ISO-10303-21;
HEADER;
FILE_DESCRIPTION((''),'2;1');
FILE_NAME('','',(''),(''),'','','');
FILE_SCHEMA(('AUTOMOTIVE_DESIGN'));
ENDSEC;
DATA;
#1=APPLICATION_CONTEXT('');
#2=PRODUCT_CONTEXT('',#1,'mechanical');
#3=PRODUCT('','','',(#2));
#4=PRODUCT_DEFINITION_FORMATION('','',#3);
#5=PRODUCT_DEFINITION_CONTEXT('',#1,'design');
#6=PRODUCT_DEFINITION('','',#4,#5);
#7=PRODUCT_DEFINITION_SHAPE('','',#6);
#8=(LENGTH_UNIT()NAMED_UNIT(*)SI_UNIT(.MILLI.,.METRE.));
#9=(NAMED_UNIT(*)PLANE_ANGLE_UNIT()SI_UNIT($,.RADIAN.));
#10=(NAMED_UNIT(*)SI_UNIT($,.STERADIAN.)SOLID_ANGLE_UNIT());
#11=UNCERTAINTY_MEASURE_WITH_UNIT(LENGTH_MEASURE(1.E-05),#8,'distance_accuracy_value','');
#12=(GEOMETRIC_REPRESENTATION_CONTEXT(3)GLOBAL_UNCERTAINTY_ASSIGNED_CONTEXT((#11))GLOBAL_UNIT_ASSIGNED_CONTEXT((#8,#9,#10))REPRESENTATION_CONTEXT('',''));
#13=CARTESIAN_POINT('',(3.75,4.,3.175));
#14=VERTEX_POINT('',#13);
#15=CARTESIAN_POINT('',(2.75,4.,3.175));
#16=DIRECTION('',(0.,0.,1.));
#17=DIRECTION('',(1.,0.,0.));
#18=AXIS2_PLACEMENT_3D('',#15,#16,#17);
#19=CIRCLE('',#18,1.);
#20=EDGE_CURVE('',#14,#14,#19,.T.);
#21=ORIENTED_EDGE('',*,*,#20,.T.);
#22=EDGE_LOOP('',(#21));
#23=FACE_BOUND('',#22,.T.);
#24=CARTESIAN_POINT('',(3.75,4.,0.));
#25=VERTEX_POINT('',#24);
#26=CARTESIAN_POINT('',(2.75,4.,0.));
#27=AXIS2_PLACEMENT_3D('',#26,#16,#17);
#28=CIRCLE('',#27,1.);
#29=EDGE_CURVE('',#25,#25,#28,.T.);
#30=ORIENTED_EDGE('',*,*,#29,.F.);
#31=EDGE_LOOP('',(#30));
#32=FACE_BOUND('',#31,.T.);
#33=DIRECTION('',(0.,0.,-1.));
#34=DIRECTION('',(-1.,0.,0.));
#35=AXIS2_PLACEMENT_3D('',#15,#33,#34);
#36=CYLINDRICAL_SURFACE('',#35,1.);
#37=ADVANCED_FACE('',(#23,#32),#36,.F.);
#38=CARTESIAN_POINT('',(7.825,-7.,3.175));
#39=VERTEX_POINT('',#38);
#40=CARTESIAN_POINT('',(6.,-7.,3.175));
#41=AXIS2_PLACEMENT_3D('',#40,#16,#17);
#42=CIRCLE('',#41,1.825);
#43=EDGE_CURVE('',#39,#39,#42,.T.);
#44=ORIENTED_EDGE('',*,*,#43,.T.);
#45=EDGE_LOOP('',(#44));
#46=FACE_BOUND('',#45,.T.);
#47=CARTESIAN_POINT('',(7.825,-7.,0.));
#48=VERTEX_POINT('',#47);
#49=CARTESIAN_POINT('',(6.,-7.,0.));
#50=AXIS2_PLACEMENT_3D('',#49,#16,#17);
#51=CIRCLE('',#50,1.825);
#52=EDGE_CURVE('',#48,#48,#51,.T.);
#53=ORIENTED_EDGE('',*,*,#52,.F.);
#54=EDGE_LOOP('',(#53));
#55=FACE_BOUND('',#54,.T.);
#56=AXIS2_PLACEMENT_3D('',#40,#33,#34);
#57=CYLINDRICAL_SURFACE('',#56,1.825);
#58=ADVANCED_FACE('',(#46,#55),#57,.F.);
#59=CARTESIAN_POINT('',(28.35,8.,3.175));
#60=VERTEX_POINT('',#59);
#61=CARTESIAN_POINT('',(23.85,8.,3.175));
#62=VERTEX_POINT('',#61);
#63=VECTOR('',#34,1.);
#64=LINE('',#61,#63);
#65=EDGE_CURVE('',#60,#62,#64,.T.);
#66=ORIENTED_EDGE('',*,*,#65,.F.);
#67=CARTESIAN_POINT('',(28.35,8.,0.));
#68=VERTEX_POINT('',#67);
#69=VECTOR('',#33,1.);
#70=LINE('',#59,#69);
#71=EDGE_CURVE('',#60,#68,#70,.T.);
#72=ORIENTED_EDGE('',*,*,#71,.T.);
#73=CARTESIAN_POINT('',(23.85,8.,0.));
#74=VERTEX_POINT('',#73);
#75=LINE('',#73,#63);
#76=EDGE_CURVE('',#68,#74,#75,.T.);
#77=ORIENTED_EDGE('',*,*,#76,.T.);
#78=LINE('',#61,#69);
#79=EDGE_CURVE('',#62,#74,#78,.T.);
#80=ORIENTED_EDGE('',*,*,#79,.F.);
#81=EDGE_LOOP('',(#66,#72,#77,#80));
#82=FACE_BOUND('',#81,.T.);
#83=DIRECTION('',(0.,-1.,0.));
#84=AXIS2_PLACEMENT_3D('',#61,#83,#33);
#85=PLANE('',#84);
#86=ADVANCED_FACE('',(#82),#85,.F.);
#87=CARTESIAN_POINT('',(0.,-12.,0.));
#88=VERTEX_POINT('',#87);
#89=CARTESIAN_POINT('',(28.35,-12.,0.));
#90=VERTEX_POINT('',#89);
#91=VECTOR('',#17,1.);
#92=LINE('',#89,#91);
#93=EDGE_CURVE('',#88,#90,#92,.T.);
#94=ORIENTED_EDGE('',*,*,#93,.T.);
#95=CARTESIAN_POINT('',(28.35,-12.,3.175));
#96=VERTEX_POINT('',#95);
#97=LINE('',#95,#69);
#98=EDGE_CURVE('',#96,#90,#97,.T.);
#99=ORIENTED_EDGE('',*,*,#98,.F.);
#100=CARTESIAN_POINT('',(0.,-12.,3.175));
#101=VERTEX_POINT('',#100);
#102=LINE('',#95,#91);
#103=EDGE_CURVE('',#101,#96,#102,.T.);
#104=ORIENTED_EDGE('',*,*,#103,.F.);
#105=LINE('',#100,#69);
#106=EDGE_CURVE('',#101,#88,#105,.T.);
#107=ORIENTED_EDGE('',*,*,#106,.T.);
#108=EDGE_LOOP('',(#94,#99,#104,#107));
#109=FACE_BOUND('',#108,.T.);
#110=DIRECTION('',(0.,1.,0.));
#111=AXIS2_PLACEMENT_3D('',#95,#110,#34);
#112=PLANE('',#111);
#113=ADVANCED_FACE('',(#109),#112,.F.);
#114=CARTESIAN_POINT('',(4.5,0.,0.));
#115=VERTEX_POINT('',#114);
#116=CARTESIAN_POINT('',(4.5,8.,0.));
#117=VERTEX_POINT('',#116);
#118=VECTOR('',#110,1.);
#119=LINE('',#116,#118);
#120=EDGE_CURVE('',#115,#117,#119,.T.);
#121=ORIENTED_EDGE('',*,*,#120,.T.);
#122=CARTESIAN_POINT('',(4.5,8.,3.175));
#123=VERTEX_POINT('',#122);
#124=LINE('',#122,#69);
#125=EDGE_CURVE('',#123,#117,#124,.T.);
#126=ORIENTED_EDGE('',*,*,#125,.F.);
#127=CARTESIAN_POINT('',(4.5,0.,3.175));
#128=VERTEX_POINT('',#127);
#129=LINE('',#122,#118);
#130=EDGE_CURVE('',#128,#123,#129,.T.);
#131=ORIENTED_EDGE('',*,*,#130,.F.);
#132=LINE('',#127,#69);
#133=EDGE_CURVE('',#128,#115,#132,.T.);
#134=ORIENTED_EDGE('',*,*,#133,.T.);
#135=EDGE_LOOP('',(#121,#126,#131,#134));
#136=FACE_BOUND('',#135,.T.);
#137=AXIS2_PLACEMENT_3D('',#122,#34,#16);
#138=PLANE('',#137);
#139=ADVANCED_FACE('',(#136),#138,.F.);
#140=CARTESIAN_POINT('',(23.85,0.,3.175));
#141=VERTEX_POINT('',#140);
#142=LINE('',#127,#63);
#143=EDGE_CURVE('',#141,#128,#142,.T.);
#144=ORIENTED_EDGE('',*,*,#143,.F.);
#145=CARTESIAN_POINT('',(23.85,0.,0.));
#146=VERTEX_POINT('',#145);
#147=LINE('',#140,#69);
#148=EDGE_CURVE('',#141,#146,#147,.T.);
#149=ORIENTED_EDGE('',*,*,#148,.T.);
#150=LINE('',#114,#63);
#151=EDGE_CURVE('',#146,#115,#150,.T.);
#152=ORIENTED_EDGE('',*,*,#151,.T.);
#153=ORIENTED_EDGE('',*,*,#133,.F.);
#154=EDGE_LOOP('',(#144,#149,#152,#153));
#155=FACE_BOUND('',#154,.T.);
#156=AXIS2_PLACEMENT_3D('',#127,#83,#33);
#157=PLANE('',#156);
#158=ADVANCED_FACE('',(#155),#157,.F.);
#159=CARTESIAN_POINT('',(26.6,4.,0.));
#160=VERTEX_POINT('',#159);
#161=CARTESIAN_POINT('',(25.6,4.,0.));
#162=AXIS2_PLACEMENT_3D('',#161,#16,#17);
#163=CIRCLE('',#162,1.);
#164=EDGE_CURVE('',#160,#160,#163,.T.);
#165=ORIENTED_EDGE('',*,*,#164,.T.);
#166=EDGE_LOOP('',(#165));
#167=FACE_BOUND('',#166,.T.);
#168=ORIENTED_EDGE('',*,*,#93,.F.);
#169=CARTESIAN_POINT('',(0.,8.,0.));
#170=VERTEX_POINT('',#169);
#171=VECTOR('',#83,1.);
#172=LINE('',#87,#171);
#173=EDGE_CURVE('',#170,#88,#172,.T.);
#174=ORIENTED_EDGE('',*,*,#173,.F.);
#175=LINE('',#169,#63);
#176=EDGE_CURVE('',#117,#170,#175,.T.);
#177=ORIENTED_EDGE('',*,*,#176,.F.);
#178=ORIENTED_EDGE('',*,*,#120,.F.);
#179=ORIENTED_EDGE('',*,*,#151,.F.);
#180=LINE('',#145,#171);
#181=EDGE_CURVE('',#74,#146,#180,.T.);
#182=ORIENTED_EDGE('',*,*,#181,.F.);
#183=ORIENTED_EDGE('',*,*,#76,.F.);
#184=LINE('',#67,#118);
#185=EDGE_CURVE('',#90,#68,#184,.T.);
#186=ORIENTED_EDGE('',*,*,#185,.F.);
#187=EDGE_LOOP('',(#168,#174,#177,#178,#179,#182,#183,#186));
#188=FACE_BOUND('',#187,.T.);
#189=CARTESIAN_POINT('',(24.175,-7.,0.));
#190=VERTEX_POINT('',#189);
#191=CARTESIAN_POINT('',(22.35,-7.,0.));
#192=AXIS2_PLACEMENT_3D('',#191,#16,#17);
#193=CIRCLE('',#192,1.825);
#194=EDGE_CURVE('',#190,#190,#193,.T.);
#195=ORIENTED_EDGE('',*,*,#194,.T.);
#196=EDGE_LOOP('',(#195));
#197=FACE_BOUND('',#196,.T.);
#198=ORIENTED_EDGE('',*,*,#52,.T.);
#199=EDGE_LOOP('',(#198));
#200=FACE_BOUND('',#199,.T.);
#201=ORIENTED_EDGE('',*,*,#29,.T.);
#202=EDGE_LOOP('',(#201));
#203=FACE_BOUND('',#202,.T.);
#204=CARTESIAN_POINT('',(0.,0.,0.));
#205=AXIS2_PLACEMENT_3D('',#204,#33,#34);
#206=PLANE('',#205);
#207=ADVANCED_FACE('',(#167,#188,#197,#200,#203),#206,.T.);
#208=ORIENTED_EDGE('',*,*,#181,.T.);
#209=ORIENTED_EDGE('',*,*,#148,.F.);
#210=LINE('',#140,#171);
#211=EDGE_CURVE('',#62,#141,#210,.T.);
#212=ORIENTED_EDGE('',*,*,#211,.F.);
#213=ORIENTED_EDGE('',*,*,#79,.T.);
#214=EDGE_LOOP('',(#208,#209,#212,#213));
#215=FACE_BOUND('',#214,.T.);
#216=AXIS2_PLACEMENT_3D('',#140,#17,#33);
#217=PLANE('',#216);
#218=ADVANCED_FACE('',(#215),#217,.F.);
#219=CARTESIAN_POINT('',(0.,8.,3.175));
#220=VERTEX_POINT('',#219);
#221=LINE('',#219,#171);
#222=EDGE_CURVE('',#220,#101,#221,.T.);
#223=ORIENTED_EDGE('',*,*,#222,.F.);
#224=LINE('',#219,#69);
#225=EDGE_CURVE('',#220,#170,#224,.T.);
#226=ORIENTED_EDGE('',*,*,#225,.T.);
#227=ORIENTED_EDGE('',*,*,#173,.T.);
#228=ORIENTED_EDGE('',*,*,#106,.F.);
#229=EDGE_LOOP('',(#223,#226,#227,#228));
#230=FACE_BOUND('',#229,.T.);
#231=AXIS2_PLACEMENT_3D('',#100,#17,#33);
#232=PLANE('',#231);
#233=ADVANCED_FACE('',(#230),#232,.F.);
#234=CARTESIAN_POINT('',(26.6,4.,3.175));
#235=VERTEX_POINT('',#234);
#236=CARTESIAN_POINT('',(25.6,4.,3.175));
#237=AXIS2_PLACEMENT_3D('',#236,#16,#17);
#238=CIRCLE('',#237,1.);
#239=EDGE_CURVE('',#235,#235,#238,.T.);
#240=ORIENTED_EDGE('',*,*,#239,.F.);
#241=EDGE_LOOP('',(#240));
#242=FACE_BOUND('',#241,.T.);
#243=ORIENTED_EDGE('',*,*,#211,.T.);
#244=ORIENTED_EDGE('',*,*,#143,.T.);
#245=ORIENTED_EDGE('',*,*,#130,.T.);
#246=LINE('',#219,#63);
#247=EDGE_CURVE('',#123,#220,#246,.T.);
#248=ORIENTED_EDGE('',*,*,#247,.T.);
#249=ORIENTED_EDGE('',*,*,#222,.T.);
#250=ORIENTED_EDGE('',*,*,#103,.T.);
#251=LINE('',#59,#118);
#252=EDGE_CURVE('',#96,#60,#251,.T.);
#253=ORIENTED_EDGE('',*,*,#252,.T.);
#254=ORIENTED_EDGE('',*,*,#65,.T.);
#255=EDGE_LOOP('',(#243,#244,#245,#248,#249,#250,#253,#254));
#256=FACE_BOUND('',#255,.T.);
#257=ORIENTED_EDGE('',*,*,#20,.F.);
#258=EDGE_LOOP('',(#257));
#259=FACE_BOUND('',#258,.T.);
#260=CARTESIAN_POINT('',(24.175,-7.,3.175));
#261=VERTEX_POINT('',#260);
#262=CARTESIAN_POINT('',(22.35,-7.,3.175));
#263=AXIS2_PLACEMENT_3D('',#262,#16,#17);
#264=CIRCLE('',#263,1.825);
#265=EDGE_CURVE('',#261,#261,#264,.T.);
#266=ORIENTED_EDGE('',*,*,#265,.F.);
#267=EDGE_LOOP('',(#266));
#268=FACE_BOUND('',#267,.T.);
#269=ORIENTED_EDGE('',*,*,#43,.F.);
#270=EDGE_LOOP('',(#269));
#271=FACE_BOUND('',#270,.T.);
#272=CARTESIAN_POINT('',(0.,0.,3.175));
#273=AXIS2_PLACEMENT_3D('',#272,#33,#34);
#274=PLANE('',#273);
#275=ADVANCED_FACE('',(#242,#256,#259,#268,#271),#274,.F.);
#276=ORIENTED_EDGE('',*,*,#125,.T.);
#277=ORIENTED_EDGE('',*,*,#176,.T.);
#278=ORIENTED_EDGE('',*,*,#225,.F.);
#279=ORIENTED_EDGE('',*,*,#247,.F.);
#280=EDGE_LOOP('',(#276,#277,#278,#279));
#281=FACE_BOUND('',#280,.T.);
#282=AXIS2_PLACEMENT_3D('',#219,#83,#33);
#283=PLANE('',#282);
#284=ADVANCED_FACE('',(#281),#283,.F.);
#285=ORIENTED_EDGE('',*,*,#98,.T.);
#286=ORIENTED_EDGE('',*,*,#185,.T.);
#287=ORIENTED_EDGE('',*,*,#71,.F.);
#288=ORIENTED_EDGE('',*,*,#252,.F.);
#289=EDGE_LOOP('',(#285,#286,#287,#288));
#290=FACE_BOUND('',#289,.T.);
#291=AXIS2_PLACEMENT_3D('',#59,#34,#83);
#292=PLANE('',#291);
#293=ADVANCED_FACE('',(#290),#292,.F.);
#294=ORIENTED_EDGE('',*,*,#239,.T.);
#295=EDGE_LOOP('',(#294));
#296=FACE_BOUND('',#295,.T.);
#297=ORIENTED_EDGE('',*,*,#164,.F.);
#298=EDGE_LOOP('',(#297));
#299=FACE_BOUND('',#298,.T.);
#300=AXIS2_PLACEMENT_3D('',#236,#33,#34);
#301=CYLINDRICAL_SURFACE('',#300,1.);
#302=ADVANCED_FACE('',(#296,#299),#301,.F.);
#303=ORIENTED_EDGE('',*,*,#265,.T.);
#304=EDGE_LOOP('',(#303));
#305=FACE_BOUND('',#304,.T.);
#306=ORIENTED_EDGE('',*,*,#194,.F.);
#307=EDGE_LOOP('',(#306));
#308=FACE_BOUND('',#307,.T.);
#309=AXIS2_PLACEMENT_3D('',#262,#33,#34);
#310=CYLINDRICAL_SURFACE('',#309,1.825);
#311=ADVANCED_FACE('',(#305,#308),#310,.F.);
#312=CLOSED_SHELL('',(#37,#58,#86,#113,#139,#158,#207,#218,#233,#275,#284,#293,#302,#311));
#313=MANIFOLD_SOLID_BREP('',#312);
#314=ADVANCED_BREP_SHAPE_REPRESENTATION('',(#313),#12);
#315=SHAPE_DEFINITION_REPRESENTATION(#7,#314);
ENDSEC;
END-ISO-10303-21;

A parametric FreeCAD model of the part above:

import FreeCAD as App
import Part
import Sketcher


def add_polygon(sketch, points):
    """Adds a closed chain of lines whose ends are joined by coincident constraints."""
    first, n = sketch.GeometryCount, len(points)
    for a, b in zip(points, points[1:] + points[:1]):
        sketch.addGeometry(Part.LineSegment(App.Vector(*a, 0), App.Vector(*b, 0)), False)
    for i in range(n):
        sketch.addConstraint(Sketcher.Constraint("Coincident", first + i, 2, first + (i + 1) % n, 1))

doc = App.newDocument("Part")
body = doc.addObject("PartDesign::Body", "Body")

sketch1 = body.newObject("Sketcher::SketchObject", "Sketch")
sketch1.AttachmentSupport = (doc.getObject("XY_Plane"), [""])
sketch1.MapMode = "FlatFace"
add_polygon(sketch1, [(0, 8), (0, -12), (28.35, -12), (28.35, 8), (23.85, 8), (23.85, 0), (4.5, 0), (4.5, 8)])
sketch1.addGeometry(Part.Circle(App.Vector(6, -7, 0), App.Vector(0, 0, 1), 1.825), False)
sketch1.addGeometry(Part.Circle(App.Vector(22.35, -7, 0), App.Vector(0, 0, 1), 1.825), False)
sketch1.addGeometry(Part.Circle(App.Vector(2.75, 4, 0), App.Vector(0, 0, 1), 1), False)
sketch1.addGeometry(Part.Circle(App.Vector(25.6, 4, 0), App.Vector(0, 0, 1), 1), False)
sketch1.addConstraint(Sketcher.Constraint("Vertical", 0))
sketch1.addConstraint(Sketcher.Constraint("Horizontal", 1))
sketch1.addConstraint(Sketcher.Constraint("Vertical", 2))
sketch1.addConstraint(Sketcher.Constraint("Horizontal", 3))
sketch1.addConstraint(Sketcher.Constraint("Vertical", 4))
sketch1.addConstraint(Sketcher.Constraint("Horizontal", 5))
sketch1.addConstraint(Sketcher.Constraint("Vertical", 6))
sketch1.addConstraint(Sketcher.Constraint("Horizontal", 7))
sketch1.addConstraint(Sketcher.Constraint("Equal", 8, 9))
sketch1.addConstraint(Sketcher.Constraint("Equal", 10, 11))
sketch1.addConstraint(Sketcher.Constraint("PointOnObject", 0, 2, -2))
sketch1.addConstraint(Sketcher.Constraint("PointOnObject", 4, 2, -1))
sketch1.addConstraint(Sketcher.Constraint("Horizontal", 8, 3, 9, 3))
sketch1.addConstraint(Sketcher.Constraint("Horizontal", 10, 3, 11, 3))
sketch1.addConstraint(Sketcher.Constraint("Horizontal", 3, 2, 6, 2))
sketch1.addConstraint(Sketcher.Constraint("Equal", 3, 7))
sketch1.addConstraint(Sketcher.Constraint("Diameter", 10, 2.0))
sketch1.addConstraint(Sketcher.Constraint("Diameter", 8, 3.65))
sketch1.addConstraint(Sketcher.Constraint("DistanceY", 0, 2, 0, 1, 20.0))
sketch1.addConstraint(Sketcher.Constraint("DistanceY", 4, 2, 4, 1, 8.0))
sketch1.addConstraint(Sketcher.Constraint("DistanceX", 3, 2, 3, 1, 4.5))
sketch1.addConstraint(Sketcher.Constraint("DistanceX", -1, 1, 8, 3, 6.0))
sketch1.addConstraint(Sketcher.Constraint("DistanceY", 8, 3, -1, 1, 7.0))
sketch1.addConstraint(Sketcher.Constraint("DistanceY", -1, 1, 10, 3, 4.0))
sketch1.addConstraint(Sketcher.Constraint("DistanceX", 9, 3, 1, 2, 6.0))
sketch1.addConstraint(Sketcher.Constraint("DistanceX", 1, 1, 1, 2, 28.35))
sketch1.addConstraint(Sketcher.Constraint("DistanceX", -1, 1, 11, 3, 25.6))
sketch1.addConstraint(Sketcher.Constraint("DistanceX", 10, 3, 9, 3, 19.6))
pad1 = body.newObject("PartDesign::Pad", "Pad")
pad1.Profile = sketch1
pad1.Length = 3.175

doc.recompute()
